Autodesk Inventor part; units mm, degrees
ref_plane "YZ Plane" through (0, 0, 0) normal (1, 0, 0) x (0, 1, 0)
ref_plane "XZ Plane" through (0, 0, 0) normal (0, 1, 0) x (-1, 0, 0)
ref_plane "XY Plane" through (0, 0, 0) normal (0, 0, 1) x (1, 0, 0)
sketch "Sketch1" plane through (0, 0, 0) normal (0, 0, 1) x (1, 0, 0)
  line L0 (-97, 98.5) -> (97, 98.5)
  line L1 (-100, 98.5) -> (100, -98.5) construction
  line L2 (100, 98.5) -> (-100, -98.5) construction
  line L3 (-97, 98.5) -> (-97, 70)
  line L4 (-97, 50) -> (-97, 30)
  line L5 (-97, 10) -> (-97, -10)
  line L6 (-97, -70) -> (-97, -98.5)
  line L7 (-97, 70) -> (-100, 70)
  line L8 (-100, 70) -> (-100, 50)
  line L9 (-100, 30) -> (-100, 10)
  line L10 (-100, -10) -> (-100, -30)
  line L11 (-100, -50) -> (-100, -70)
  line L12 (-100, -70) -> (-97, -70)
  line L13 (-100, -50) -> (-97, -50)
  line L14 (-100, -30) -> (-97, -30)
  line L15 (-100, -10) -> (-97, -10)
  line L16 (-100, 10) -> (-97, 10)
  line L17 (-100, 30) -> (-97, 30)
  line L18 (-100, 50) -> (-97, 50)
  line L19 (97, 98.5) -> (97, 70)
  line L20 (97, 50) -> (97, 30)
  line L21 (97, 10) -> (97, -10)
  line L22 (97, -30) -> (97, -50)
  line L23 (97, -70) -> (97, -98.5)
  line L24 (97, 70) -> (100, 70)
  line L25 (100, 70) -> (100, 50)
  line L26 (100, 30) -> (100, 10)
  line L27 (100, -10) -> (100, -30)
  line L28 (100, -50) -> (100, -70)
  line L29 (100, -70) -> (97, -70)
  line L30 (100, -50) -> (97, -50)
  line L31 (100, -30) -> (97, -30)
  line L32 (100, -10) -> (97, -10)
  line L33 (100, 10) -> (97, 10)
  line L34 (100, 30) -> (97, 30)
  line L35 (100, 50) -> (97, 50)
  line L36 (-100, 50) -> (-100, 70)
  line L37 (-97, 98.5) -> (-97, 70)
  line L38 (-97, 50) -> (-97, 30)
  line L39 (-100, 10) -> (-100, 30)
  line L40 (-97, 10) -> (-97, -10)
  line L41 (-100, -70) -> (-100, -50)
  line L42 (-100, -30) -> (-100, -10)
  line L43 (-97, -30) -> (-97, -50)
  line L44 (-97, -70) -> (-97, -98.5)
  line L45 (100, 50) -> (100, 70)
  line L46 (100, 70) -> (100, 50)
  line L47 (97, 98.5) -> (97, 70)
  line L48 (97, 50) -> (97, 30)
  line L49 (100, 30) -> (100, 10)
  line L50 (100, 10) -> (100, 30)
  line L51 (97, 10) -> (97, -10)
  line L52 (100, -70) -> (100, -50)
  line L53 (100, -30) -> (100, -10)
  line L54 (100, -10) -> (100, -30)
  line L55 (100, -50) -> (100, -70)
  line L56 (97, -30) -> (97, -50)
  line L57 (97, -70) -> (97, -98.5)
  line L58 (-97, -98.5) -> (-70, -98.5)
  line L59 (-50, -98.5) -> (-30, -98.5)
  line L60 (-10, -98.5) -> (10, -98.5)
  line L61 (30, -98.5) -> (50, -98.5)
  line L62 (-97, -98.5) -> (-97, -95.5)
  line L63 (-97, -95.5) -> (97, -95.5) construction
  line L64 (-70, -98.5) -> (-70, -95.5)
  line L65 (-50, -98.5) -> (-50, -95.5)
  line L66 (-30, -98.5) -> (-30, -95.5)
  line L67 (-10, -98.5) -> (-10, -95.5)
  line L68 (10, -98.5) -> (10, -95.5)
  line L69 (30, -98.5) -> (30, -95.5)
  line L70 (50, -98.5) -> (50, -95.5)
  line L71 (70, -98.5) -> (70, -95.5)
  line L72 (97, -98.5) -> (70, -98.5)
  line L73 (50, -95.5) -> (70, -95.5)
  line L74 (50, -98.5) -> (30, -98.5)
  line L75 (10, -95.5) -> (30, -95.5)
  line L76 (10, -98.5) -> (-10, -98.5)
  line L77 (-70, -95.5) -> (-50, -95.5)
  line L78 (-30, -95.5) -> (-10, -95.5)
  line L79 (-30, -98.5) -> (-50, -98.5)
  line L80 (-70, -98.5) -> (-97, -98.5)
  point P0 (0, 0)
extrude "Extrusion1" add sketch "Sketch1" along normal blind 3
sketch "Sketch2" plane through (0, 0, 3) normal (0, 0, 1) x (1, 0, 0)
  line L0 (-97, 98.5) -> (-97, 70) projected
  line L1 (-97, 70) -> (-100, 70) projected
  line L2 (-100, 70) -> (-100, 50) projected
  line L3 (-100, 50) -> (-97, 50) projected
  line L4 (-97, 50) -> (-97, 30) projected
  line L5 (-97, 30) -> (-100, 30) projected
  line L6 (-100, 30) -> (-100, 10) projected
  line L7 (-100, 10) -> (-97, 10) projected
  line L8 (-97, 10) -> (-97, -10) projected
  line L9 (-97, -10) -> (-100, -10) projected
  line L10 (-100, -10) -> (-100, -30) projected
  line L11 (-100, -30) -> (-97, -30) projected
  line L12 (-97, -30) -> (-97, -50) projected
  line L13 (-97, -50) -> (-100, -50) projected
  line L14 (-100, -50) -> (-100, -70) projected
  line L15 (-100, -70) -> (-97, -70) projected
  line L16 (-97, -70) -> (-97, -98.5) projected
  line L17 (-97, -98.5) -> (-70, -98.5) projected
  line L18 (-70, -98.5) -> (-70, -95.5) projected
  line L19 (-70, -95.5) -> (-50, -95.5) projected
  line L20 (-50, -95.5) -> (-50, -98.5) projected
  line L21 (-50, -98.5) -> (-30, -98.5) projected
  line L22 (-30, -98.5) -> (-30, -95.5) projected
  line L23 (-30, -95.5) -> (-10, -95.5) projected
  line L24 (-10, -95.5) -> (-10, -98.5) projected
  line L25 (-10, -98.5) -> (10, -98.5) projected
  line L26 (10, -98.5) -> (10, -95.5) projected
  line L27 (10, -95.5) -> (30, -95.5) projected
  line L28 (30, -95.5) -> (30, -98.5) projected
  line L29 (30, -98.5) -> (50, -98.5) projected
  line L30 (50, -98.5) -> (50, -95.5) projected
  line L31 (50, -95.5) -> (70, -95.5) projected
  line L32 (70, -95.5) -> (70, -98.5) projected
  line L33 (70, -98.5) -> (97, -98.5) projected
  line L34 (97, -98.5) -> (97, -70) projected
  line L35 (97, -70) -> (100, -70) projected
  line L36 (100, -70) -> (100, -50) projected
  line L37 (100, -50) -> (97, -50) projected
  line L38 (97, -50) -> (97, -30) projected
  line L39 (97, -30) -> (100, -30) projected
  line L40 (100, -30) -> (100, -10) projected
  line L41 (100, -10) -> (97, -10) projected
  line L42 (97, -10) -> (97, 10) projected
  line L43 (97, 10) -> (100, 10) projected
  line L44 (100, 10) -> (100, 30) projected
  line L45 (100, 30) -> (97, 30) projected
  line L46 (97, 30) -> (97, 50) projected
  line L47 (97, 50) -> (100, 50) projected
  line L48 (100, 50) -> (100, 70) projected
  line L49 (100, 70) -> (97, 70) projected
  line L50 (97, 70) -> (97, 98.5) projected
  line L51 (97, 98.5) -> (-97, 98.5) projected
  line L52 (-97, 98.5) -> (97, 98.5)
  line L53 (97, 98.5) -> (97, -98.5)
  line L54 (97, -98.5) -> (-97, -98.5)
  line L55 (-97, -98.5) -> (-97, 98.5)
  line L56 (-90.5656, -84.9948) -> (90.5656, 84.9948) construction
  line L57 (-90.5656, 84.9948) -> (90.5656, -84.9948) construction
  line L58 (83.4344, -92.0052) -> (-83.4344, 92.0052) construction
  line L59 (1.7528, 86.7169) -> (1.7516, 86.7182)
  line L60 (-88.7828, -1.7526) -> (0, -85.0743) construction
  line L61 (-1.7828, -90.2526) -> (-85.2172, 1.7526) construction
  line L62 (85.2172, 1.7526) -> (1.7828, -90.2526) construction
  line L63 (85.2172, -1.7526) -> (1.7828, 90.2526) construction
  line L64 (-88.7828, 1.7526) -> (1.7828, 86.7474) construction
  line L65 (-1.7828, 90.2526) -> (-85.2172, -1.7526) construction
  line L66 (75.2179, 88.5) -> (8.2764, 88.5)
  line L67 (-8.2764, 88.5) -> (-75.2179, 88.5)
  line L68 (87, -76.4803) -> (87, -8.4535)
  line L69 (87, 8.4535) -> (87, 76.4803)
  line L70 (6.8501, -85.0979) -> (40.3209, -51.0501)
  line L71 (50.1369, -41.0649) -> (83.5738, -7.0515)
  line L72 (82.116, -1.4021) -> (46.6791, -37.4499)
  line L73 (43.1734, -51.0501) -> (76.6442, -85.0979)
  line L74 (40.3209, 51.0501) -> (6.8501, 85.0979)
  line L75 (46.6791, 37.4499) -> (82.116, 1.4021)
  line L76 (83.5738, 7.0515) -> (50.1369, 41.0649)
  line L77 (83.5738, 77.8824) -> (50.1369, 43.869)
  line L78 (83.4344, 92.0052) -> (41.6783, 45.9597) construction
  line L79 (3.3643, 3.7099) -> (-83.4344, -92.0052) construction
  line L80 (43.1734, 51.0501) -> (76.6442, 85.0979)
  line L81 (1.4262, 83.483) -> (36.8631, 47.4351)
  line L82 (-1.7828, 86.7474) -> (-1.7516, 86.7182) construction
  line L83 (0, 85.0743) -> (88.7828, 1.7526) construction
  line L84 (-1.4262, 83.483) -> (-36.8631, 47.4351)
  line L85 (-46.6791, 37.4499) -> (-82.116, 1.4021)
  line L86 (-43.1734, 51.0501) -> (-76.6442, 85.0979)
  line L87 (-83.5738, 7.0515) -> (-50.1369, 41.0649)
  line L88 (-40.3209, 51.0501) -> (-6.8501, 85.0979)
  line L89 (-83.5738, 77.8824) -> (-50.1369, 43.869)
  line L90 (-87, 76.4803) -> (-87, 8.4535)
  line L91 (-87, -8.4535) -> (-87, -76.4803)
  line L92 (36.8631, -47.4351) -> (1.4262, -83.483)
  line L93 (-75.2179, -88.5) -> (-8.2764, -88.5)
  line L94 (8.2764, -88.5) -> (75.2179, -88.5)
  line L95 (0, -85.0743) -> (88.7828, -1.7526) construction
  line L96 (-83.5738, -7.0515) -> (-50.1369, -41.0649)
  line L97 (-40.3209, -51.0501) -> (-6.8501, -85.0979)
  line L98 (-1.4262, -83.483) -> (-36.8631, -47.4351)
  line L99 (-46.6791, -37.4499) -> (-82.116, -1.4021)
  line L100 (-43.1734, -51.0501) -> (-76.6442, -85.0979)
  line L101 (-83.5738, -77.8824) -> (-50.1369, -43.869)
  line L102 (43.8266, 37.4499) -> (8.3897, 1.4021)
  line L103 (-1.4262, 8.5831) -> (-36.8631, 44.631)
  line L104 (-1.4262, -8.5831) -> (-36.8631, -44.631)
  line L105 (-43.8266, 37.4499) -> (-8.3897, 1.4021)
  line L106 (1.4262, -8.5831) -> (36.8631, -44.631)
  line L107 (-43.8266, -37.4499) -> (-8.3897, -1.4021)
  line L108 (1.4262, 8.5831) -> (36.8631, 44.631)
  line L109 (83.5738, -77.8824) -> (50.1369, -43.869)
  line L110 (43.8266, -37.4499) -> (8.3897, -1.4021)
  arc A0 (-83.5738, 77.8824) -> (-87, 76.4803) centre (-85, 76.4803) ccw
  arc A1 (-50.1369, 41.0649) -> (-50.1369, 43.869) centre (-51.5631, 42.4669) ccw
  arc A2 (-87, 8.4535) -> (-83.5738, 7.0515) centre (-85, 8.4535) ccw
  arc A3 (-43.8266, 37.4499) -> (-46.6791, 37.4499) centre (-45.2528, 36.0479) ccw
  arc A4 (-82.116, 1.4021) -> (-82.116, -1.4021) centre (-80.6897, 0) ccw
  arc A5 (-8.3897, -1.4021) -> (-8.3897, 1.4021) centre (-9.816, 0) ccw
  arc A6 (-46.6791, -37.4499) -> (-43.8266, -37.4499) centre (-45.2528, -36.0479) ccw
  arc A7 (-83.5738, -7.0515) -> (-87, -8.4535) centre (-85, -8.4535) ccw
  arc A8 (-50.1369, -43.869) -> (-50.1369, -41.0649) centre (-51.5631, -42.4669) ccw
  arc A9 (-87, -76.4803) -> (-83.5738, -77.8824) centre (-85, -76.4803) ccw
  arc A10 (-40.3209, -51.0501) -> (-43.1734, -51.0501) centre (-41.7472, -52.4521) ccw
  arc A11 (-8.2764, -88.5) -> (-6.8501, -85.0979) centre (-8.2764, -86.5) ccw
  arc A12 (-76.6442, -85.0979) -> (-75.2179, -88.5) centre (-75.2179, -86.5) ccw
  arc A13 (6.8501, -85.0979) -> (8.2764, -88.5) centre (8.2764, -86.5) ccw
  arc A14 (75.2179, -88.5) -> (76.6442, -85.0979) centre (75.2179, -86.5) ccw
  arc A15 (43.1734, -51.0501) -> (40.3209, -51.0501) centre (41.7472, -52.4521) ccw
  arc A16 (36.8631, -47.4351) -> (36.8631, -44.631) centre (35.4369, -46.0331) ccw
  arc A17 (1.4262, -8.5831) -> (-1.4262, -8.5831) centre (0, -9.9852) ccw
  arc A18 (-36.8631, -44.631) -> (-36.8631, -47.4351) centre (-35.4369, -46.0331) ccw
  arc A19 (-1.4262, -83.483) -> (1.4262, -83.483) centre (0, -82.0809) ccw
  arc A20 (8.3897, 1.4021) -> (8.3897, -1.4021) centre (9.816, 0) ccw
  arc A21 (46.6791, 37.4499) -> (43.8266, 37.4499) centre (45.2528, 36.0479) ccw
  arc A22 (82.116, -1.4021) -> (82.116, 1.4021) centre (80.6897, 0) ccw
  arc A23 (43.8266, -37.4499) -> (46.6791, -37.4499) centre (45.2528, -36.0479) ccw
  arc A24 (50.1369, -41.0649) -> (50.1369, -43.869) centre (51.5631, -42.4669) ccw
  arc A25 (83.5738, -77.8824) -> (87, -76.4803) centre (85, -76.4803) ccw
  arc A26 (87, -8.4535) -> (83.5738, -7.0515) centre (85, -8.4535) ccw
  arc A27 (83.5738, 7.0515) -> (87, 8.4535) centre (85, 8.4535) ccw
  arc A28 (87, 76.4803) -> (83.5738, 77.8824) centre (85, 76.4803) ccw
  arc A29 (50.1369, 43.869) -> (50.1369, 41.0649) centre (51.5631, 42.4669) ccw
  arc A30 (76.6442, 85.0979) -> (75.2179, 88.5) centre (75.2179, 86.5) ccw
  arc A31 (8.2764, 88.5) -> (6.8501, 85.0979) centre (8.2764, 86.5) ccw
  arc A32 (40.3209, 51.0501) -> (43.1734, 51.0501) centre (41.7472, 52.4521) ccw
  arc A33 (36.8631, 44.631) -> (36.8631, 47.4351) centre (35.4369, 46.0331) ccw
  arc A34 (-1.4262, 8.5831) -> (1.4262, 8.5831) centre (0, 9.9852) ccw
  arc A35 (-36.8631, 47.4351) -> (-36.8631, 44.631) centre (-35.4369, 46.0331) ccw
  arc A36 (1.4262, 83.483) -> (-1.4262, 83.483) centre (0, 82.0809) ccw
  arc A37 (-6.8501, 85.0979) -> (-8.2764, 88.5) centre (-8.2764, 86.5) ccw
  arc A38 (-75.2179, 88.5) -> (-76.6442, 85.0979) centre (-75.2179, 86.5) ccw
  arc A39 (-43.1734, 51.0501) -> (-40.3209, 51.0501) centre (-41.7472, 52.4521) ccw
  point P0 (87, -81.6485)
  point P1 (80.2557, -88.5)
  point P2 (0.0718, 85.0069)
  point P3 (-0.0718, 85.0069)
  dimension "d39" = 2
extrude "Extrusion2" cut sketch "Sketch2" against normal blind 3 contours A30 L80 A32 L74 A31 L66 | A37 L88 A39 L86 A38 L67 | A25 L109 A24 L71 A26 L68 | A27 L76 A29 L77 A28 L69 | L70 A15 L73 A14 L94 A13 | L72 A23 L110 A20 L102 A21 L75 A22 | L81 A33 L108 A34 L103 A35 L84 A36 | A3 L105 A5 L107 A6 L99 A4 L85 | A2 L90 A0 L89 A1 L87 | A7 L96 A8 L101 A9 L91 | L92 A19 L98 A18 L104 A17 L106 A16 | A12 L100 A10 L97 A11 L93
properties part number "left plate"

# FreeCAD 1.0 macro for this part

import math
import FreeCAD as App
import Part
import Sketcher

V = App.Vector
Q = App.Units.Quantity


def add_polygon(sketch, points):
    """Adds a closed chain of lines whose ends are joined by coincident constraints."""
    first, n = sketch.GeometryCount, len(points)
    for a, b in zip(points, points[1:] + points[:1]):
        sketch.addGeometry(Part.LineSegment(App.Vector(*a, 0), App.Vector(*b, 0)), False)
    for i in range(n):
        sketch.addConstraint(Sketcher.Constraint("Coincident", first + i, 2, first + (i + 1) % n, 1))

doc = App.newDocument("Part")
body = doc.addObject("PartDesign::Body", "Body")

# Sketch on XY plane
sketch1 = body.newObject("Sketcher::SketchObject", "Sketch")
sketch1.AttachmentSupport = (doc.getObject("XY_Plane"), [""])
sketch1.MapMode = "FlatFace"
add_polygon(sketch1, [(97, 98.5), (-97, 98.5), (-97, 70), (-100, 70), (-100, 50), (-97, 50), (-97, 30), (-100, 30), (-100, 10), (-97, 10), (-97, -10), (-100, -10), (-100, -30), (-97, -30), (-97, -50), (-100, -50), (-100, -70), (-97, -70), (-97, -98.5), (-70, -98.5), (-70, -95.5), (-50, -95.5), (-50, -98.5), (-30, -98.5), (-30, -95.5), (-10, -95.5), (-10, -98.5), (10, -98.5), (10, -95.5), (30, -95.5), (30, -98.5), (50, -98.5), (50, -95.5), (70, -95.5), (70, -98.5), (97, -98.5), (97, -70), (100, -70), (100, -50), (97, -50), (97, -30), (100, -30), (100, -10), (97, -10), (97, 10), (100, 10), (100, 30), (97, 30), (97, 50), (100, 50), (100, 70), (97, 70)])  # lines 0-51
sketch1.addConstraint([
    Sketcher.Constraint("Horizontal", 0),
    Sketcher.Constraint("Vertical", 1),
    Sketcher.Constraint("Horizontal", 2),
    Sketcher.Constraint("Vertical", 3),
    Sketcher.Constraint("Horizontal", 4),
    Sketcher.Constraint("Vertical", 5),
    Sketcher.Constraint("Horizontal", 6),
    Sketcher.Constraint("Vertical", 7),
    Sketcher.Constraint("Horizontal", 8),
    Sketcher.Constraint("Vertical", 9),
    Sketcher.Constraint("Horizontal", 10),
    Sketcher.Constraint("Vertical", 11),
    Sketcher.Constraint("Horizontal", 12),
    Sketcher.Constraint("Vertical", 13),
    Sketcher.Constraint("Horizontal", 14),
    Sketcher.Constraint("Vertical", 15),
    Sketcher.Constraint("Horizontal", 16),
    Sketcher.Constraint("Vertical", 17),
    Sketcher.Constraint("Horizontal", 18),
    Sketcher.Constraint("Vertical", 19),
    Sketcher.Constraint("Horizontal", 20),
    Sketcher.Constraint("Vertical", 21),
    Sketcher.Constraint("Horizontal", 22),
    Sketcher.Constraint("Vertical", 23),
    Sketcher.Constraint("Horizontal", 24),
    Sketcher.Constraint("Vertical", 25),
    Sketcher.Constraint("Horizontal", 26),
    Sketcher.Constraint("Vertical", 27),
    Sketcher.Constraint("Horizontal", 28),
    Sketcher.Constraint("Vertical", 29),
    Sketcher.Constraint("Horizontal", 30),
    Sketcher.Constraint("Vertical", 31),
    Sketcher.Constraint("Horizontal", 32),
    Sketcher.Constraint("Vertical", 33),
    Sketcher.Constraint("Horizontal", 34),
    Sketcher.Constraint("Vertical", 35),
    Sketcher.Constraint("Horizontal", 36),
    Sketcher.Constraint("Vertical", 37),
    Sketcher.Constraint("Horizontal", 38),
    Sketcher.Constraint("Vertical", 39),
    Sketcher.Constraint("Horizontal", 40),
    Sketcher.Constraint("Vertical", 41),
    Sketcher.Constraint("Horizontal", 42),
    Sketcher.Constraint("Vertical", 43),
    Sketcher.Constraint("Horizontal", 44),
    Sketcher.Constraint("Vertical", 45),
    Sketcher.Constraint("Horizontal", 46),
    Sketcher.Constraint("Vertical", 47),
    Sketcher.Constraint("Horizontal", 48),
    Sketcher.Constraint("Vertical", 49),
    Sketcher.Constraint("Horizontal", 50),
    Sketcher.Constraint("Vertical", 51),
    Sketcher.Constraint("Symmetric", 0, 2, 34, 2, -1, 1),
    Sketcher.Constraint("Symmetric", 2, 2, 36, 2, -1, 1),
    Sketcher.Constraint("Symmetric", 4, 2, 38, 2, -1, 1),
    Sketcher.Constraint("Symmetric", 6, 2, 40, 2, -1, 1),
    Sketcher.Constraint("Symmetric", 8, 2, 42, 2, -1, 1),
    Sketcher.Constraint("Symmetric", 10, 2, 44, 2, -1, 1),
    Sketcher.Constraint("Symmetric", 12, 2, 46, 2, -1, 1),
    Sketcher.Constraint("Symmetric", 14, 2, 48, 2, -1, 1),
    Sketcher.Constraint("Symmetric", 16, 2, 50, 2, -1, 1),
    Sketcher.Constraint("Symmetric", 24, 2, 27, 2, -2),
    Sketcher.Constraint("Symmetric", 22, 2, 29, 2, -2),
    Sketcher.Constraint("Symmetric", 20, 2, 31, 2, -2),
    Sketcher.Constraint("Symmetric", 18, 2, 33, 2, -2),
    Sketcher.Constraint("Symmetric", 16, 2, 35, 2, -2),
    Sketcher.Constraint("Symmetric", 14, 2, 37, 2, -2),
    Sketcher.Constraint("Symmetric", 12, 2, 39, 2, -2),
    Sketcher.Constraint("Symmetric", 10, 2, 41, 2, -2),
    Sketcher.Constraint("Horizontal", 18, 2, 21, 2),
    Sketcher.Constraint("Horizontal", 20, 2, 23, 2),
    Sketcher.Constraint("Horizontal", 22, 2, 25, 2),
    Sketcher.Constraint("Vertical", 1, 2, 4, 2),
    Sketcher.Constraint("Vertical", 3, 2, 6, 2),
    Sketcher.Constraint("Vertical", 5, 2, 8, 2),
    Sketcher.Constraint("Equal", 20, 22),
    Sketcher.Constraint("Equal", 22, 24),
    Sketcher.Constraint("Equal", 24, 26),
    Sketcher.Constraint("Equal", 32, 3),
    Sketcher.Constraint("Equal", 3, 5),
    Sketcher.Constraint("Equal", 5, 7),
    Sketcher.Constraint("Equal", 7, 9),
    Sketcher.Constraint("Equal", 50, 19),
    Sketcher.Constraint("DistanceX", 0, 2, 0, 1, 194.0),
    Sketcher.Constraint("DistanceX", 2, 2, 2, 1, 3.0),
    Sketcher.Constraint("DistanceX", 18, 1, 18, 2, 27.0),
    Sketcher.Constraint("DistanceY", 1, 2, 1, 1, 28.5),
])
pad1 = body.newObject("PartDesign::Pad", "Pad")
pad1.Profile = sketch1
pad1.Length = 3

# Sketch on XY plane
sketch2 = body.newObject("Sketcher::SketchObject", "Sketch001")
sketch2.AttachmentSupport = (doc.getObject("XY_Plane"), [""])
sketch2.MapMode = "FlatFace"
sketch2.AttachmentOffset = App.Placement(V(0, 0, 3), App.Rotation())
sketch2.addGeometry([
    Part.ArcOfCircle(Part.Circle(V(75.2, 86.5, 0), V(0, 0, 1), 2), math.radians(-45), math.radians(90)),  # 0
    Part.LineSegment(V(75.2, 88.5, 0), V(8.3, 88.5, 0)),  # 1
    Part.ArcOfCircle(Part.Circle(V(8.3, 86.5, 0), V(0, 0, 1), 2), math.radians(90), math.radians(225)),  # 2
    Part.LineSegment(V(6.9, 85.1, 0), V(40.3, 51.1, 0)),  # 3
    Part.ArcOfCircle(Part.Circle(V(41.7, 52.5, 0), V(0, 0, 1), 2), math.radians(-135), math.radians(-45)),  # 4
    Part.LineSegment(V(43.2, 51.1, 0), V(76.6, 85.1, 0)),  # 5
    Part.ArcOfCircle(Part.Circle(V(-8.3, 86.5, 0), V(0, 0, 1), 2), math.radians(-45), math.radians(90)),  # 6
    Part.LineSegment(V(-8.3, 88.5, 0), V(-75.2, 88.5, 0)),  # 7
    Part.ArcOfCircle(Part.Circle(V(-75.2, 86.5, 0), V(0, 0, 1), 2), math.radians(90), math.radians(225)),  # 8
    Part.LineSegment(V(-76.6, 85.1, 0), V(-43.2, 51.1, 0)),  # 9
    Part.ArcOfCircle(Part.Circle(V(-41.7, 52.5, 0), V(0, 0, 1), 2), math.radians(-135), math.radians(-45)),  # 10
    Part.LineSegment(V(-40.3, 51.1, 0), V(-6.9, 85.1, 0)),  # 11
    Part.ArcOfCircle(Part.Circle(V(85, -76.5, 0), V(0, 0, 1), 2), math.radians(-135), math.radians(0)),  # 12
    Part.LineSegment(V(87, -76.5, 0), V(87, -8.5, 0)),  # 13
    Part.ArcOfCircle(Part.Circle(V(85, -8.5, 0), V(0, 0, 1), 2), math.radians(0), math.radians(135)),  # 14
    Part.LineSegment(V(83.6, -7.1, 0), V(50.1, -41.1, 0)),  # 15
    Part.ArcOfCircle(Part.Circle(V(51.6, -42.5, 0), V(0, 0, 1), 2), math.radians(135), math.radians(225)),  # 16
    Part.LineSegment(V(50.1, -43.9, 0), V(83.6, -77.9, 0)),  # 17
    Part.ArcOfCircle(Part.Circle(V(85, 8.5, 0), V(0, 0, 1), 2), math.radians(-135), math.radians(0)),  # 18
    Part.LineSegment(V(87, 8.5, 0), V(87, 76.5, 0)),  # 19
    Part.ArcOfCircle(Part.Circle(V(85, 76.5, 0), V(0, 0, 1), 2), math.radians(0), math.radians(135)),  # 20
    Part.LineSegment(V(83.6, 77.9, 0), V(50.1, 43.9, 0)),  # 21
    Part.ArcOfCircle(Part.Circle(V(51.6, 42.5, 0), V(0, 0, 1), 2), math.radians(135), math.radians(225)),  # 22
    Part.LineSegment(V(50.1, 41.1, 0), V(83.6, 7.1, 0)),  # 23
    Part.LineSegment(V(40.3, -51.1, 0), V(6.9, -85.1, 0)),  # 24
    Part.ArcOfCircle(Part.Circle(V(8.3, -86.5, 0), V(0, 0, 1), 2), math.radians(135), math.radians(270)),  # 25
    Part.LineSegment(V(8.3, -88.5, 0), V(75.2, -88.5, 0)),  # 26
    Part.ArcOfCircle(Part.Circle(V(75.2, -86.5, 0), V(0, 0, 1), 2), math.radians(-90), math.radians(45)),  # 27
    Part.LineSegment(V(76.6, -85.1, 0), V(43.2, -51.1, 0)),  # 28
    Part.ArcOfCircle(Part.Circle(V(41.7, -52.5, 0), V(0, 0, 1), 2), math.radians(45), math.radians(135)),  # 29
    Part.LineSegment(V(46.7, -37.4, 0), V(82.1, -1.4, 0)),  # 30
    Part.ArcOfCircle(Part.Circle(V(80.7, 0, 0), V(0, 0, 1), 2), math.radians(-45), math.radians(45)),  # 31
    Part.LineSegment(V(82.1, 1.4, 0), V(46.7, 37.4, 0)),  # 32
    Part.ArcOfCircle(Part.Circle(V(45.3, 36, 0), V(0, 0, 1), 2), math.radians(45), math.radians(135)),  # 33
    Part.LineSegment(V(43.8, 37.4, 0), V(8.4, 1.4, 0)),  # 34
    Part.ArcOfCircle(Part.Circle(V(9.8, 0, 0), V(0, 0, 1), 2), math.radians(135), math.radians(225)),  # 35
    Part.LineSegment(V(8.4, -1.4, 0), V(43.8, -37.4, 0)),  # 36
    Part.ArcOfCircle(Part.Circle(V(45.3, -36, 0), V(0, 0, 1), 2), math.radians(-135), math.radians(-45)),  # 37
    Part.LineSegment(V(36.9, 47.4, 0), V(1.4, 83.5, 0)),  # 38
    Part.ArcOfCircle(Part.Circle(V(0, 82.1, 0), V(0, 0, 1), 2), math.radians(45), math.radians(135)),  # 39
    Part.LineSegment(V(-1.4, 83.5, 0), V(-36.9, 47.4, 0)),  # 40
    Part.ArcOfCircle(Part.Circle(V(-35.4, 46, 0), V(0, 0, 1), 2), math.radians(135), math.radians(225)),  # 41
    Part.LineSegment(V(-36.9, 44.6, 0), V(-1.4, 8.6, 0)),  # 42
    Part.ArcOfCircle(Part.Circle(V(0, 10, 0), V(0, 0, 1), 2), math.radians(-135), math.radians(-45)),  # 43
    Part.LineSegment(V(1.4, 8.6, 0), V(36.9, 44.6, 0)),  # 44
    Part.ArcOfCircle(Part.Circle(V(35.4, 46, 0), V(0, 0, 1), 2), math.radians(-45), math.radians(45)),  # 45
    Part.ArcOfCircle(Part.Circle(V(-45.3, 36, 0), V(0, 0, 1), 2), math.radians(45), math.radians(135)),  # 46
    Part.LineSegment(V(-46.7, 37.4, 0), V(-82.1, 1.4, 0)),  # 47
    Part.ArcOfCircle(Part.Circle(V(-80.7, 0, 0), V(0, 0, 1), 2), math.radians(135), math.radians(225)),  # 48
    Part.LineSegment(V(-82.1, -1.4, 0), V(-46.7, -37.4, 0)),  # 49
    Part.ArcOfCircle(Part.Circle(V(-45.3, -36, 0), V(0, 0, 1), 2), math.radians(-135), math.radians(-45)),  # 50
    Part.LineSegment(V(-43.8, -37.4, 0), V(-8.4, -1.4, 0)),  # 51
    Part.ArcOfCircle(Part.Circle(V(-9.8, 0, 0), V(0, 0, 1), 2), math.radians(-45), math.radians(45)),  # 52
    Part.LineSegment(V(-8.4, 1.4, 0), V(-43.8, 37.4, 0)),  # 53
    Part.ArcOfCircle(Part.Circle(V(-85, 8.5, 0), V(0, 0, 1), 2), math.radians(180), math.radians(315)),  # 54
    Part.LineSegment(V(-83.6, 7.1, 0), V(-50.1, 41.1, 0)),  # 55
    Part.ArcOfCircle(Part.Circle(V(-51.6, 42.5, 0), V(0, 0, 1), 2), math.radians(-45), math.radians(45)),  # 56
    Part.LineSegment(V(-50.1, 43.9, 0), V(-83.6, 77.9, 0)),  # 57
    Part.ArcOfCircle(Part.Circle(V(-85, 76.5, 0), V(0, 0, 1), 2), math.radians(45), math.radians(180)),  # 58
    Part.LineSegment(V(-87, 76.5, 0), V(-87, 8.5, 0)),  # 59
    Part.ArcOfCircle(Part.Circle(V(-85, -8.5, 0), V(0, 0, 1), 2), math.radians(45), math.radians(180)),  # 60
    Part.LineSegment(V(-87, -8.5, 0), V(-87, -76.5, 0)),  # 61
    Part.ArcOfCircle(Part.Circle(V(-85, -76.5, 0), V(0, 0, 1), 2), math.radians(180), math.radians(315)),  # 62
    Part.LineSegment(V(-83.6, -77.9, 0), V(-50.1, -43.9, 0)),  # 63
    Part.ArcOfCircle(Part.Circle(V(-51.6, -42.5, 0), V(0, 0, 1), 2), math.radians(-45), math.radians(45)),  # 64
    Part.LineSegment(V(-50.1, -41.1, 0), V(-83.6, -7.1, 0)),  # 65
    Part.LineSegment(V(1.4, -83.5, 0), V(36.9, -47.4, 0)),  # 66
    Part.ArcOfCircle(Part.Circle(V(35.4, -46, 0), V(0, 0, 1), 2), math.radians(-45), math.radians(45)),  # 67
    Part.LineSegment(V(36.9, -44.6, 0), V(1.4, -8.6, 0)),  # 68
    Part.ArcOfCircle(Part.Circle(V(0, -10, 0), V(0, 0, 1), 2), math.radians(45), math.radians(135)),  # 69
    Part.LineSegment(V(-1.4, -8.6, 0), V(-36.9, -44.6, 0)),  # 70
    Part.ArcOfCircle(Part.Circle(V(-35.4, -46, 0), V(0, 0, 1), 2), math.radians(135), math.radians(225)),  # 71
    Part.LineSegment(V(-36.9, -47.4, 0), V(-1.4, -83.5, 0)),  # 72
    Part.ArcOfCircle(Part.Circle(V(0, -82.1, 0), V(0, 0, 1), 2), math.radians(-135), math.radians(-45)),  # 73
    Part.ArcOfCircle(Part.Circle(V(-75.2, -86.5, 0), V(0, 0, 1), 2), math.radians(135), math.radians(270)),  # 74
    Part.LineSegment(V(-75.2, -88.5, 0), V(-8.3, -88.5, 0)),  # 75
    Part.ArcOfCircle(Part.Circle(V(-8.3, -86.5, 0), V(0, 0, 1), 2), math.radians(-90), math.radians(45)),  # 76
    Part.LineSegment(V(-6.9, -85.1, 0), V(-40.3, -51.1, 0)),  # 77
    Part.ArcOfCircle(Part.Circle(V(-41.7, -52.5, 0), V(0, 0, 1), 2), math.radians(45), math.radians(135)),  # 78
    Part.LineSegment(V(-43.2, -51.1, 0), V(-76.6, -85.1, 0)),  # 79
], False)
sketch2.addConstraint([
    Sketcher.Constraint("Tangent", 0, 2, 1, 1),
    Sketcher.Constraint("Tangent", 1, 2, 2, 1),
    Sketcher.Constraint("Tangent", 2, 2, 3, 1),
    Sketcher.Constraint("Tangent", 3, 2, 4, 1),
    Sketcher.Constraint("Tangent", 4, 2, 5, 1),
    Sketcher.Constraint("Tangent", 5, 2, 0, 1),
    Sketcher.Constraint("Tangent", 6, 2, 7, 1),
    Sketcher.Constraint("Tangent", 7, 2, 8, 1),
    Sketcher.Constraint("Tangent", 8, 2, 9, 1),
    Sketcher.Constraint("Tangent", 9, 2, 10, 1),
    Sketcher.Constraint("Tangent", 10, 2, 11, 1),
    Sketcher.Constraint("Tangent", 11, 2, 6, 1),
    Sketcher.Constraint("Tangent", 12, 2, 13, 1),
    Sketcher.Constraint("Tangent", 13, 2, 14, 1),
    Sketcher.Constraint("Tangent", 14, 2, 15, 1),
    Sketcher.Constraint("Tangent", 15, 2, 16, 1),
    Sketcher.Constraint("Tangent", 16, 2, 17, 1),
    Sketcher.Constraint("Tangent", 17, 2, 12, 1),
    Sketcher.Constraint("Tangent", 18, 2, 19, 1),
    Sketcher.Constraint("Tangent", 19, 2, 20, 1),
    Sketcher.Constraint("Tangent", 20, 2, 21, 1),
    Sketcher.Constraint("Tangent", 21, 2, 22, 1),
    Sketcher.Constraint("Tangent", 22, 2, 23, 1),
    Sketcher.Constraint("Tangent", 23, 2, 18, 1),
    Sketcher.Constraint("Tangent", 24, 2, 25, 1),
    Sketcher.Constraint("Tangent", 25, 2, 26, 1),
    Sketcher.Constraint("Tangent", 26, 2, 27, 1),
    Sketcher.Constraint("Tangent", 27, 2, 28, 1),
    Sketcher.Constraint("Tangent", 28, 2, 29, 1),
    Sketcher.Constraint("Tangent", 29, 2, 24, 1),
    Sketcher.Constraint("Tangent", 30, 2, 31, 1),
    Sketcher.Constraint("Tangent", 31, 2, 32, 1),
    Sketcher.Constraint("Tangent", 32, 2, 33, 1),
    Sketcher.Constraint("Tangent", 33, 2, 34, 1),
    Sketcher.Constraint("Tangent", 34, 2, 35, 1),
    Sketcher.Constraint("Tangent", 35, 2, 36, 1),
    Sketcher.Constraint("Tangent", 36, 2, 37, 1),
    Sketcher.Constraint("Tangent", 37, 2, 30, 1),
    Sketcher.Constraint("Tangent", 38, 2, 39, 1),
    Sketcher.Constraint("Tangent", 39, 2, 40, 1),
    Sketcher.Constraint("Tangent", 40, 2, 41, 1),
    Sketcher.Constraint("Tangent", 41, 2, 42, 1),
    Sketcher.Constraint("Tangent", 42, 2, 43, 1),
    Sketcher.Constraint("Tangent", 43, 2, 44, 1),
    Sketcher.Constraint("Tangent", 44, 2, 45, 1),
    Sketcher.Constraint("Tangent", 45, 2, 38, 1),
    Sketcher.Constraint("Tangent", 46, 2, 47, 1),
    Sketcher.Constraint("Tangent", 47, 2, 48, 1),
    Sketcher.Constraint("Tangent", 48, 2, 49, 1),
    Sketcher.Constraint("Tangent", 49, 2, 50, 1),
    Sketcher.Constraint("Tangent", 50, 2, 51, 1),
    Sketcher.Constraint("Tangent", 51, 2, 52, 1),
    Sketcher.Constraint("Tangent", 52, 2, 53, 1),
    Sketcher.Constraint("Tangent", 53, 2, 46, 1),
    Sketcher.Constraint("Tangent", 54, 2, 55, 1),
    Sketcher.Constraint("Tangent", 55, 2, 56, 1),
    Sketcher.Constraint("Tangent", 56, 2, 57, 1),
    Sketcher.Constraint("Tangent", 57, 2, 58, 1),
    Sketcher.Constraint("Tangent", 58, 2, 59, 1),
    Sketcher.Constraint("Tangent", 59, 2, 54, 1),
    Sketcher.Constraint("Tangent", 60, 2, 61, 1),
    Sketcher.Constraint("Tangent", 61, 2, 62, 1),
    Sketcher.Constraint("Tangent", 62, 2, 63, 1),
    Sketcher.Constraint("Tangent", 63, 2, 64, 1),
    Sketcher.Constraint("Tangent", 64, 2, 65, 1),
    Sketcher.Constraint("Tangent", 65, 2, 60, 1),
    Sketcher.Constraint("Tangent", 66, 2, 67, 1),
    Sketcher.Constraint("Tangent", 67, 2, 68, 1),
    Sketcher.Constraint("Tangent", 68, 2, 69, 1),
    Sketcher.Constraint("Tangent", 69, 2, 70, 1),
    Sketcher.Constraint("Tangent", 70, 2, 71, 1),
    Sketcher.Constraint("Tangent", 71, 2, 72, 1),
    Sketcher.Constraint("Tangent", 72, 2, 73, 1),
    Sketcher.Constraint("Tangent", 73, 2, 66, 1),
    Sketcher.Constraint("Tangent", 74, 2, 75, 1),
    Sketcher.Constraint("Tangent", 75, 2, 76, 1),
    Sketcher.Constraint("Tangent", 76, 2, 77, 1),
    Sketcher.Constraint("Tangent", 77, 2, 78, 1),
    Sketcher.Constraint("Tangent", 78, 2, 79, 1),
    Sketcher.Constraint("Tangent", 79, 2, 74, 1),
    Sketcher.Constraint("Horizontal", 1),
    Sketcher.Constraint("Horizontal", 7),
    Sketcher.Constraint("Vertical", 13),
    Sketcher.Constraint("Vertical", 19),
    Sketcher.Constraint("Horizontal", 26),
    Sketcher.Constraint("Vertical", 59),
    Sketcher.Constraint("Vertical", 61),
    Sketcher.Constraint("Horizontal", 75),
    Sketcher.Constraint("Equal", 0, 2),
    Sketcher.Constraint("Equal", 2, 4),
    Sketcher.Constraint("Equal", 4, 6),
    Sketcher.Constraint("Equal", 6, 8),
    Sketcher.Constraint("Equal", 8, 10),
    Sketcher.Constraint("Equal", 10, 12),
    Sketcher.Constraint("Equal", 12, 14),
    Sketcher.Constraint("Equal", 14, 16),
    Sketcher.Constraint("Equal", 16, 18),
    Sketcher.Constraint("Equal", 18, 20),
    Sketcher.Constraint("Equal", 20, 22),
    Sketcher.Constraint("Equal", 22, 25),
    Sketcher.Constraint("Equal", 25, 27),
    Sketcher.Constraint("Equal", 27, 29),
    Sketcher.Constraint("Equal", 29, 31),
    Sketcher.Constraint("Equal", 31, 33),
    Sketcher.Constraint("Equal", 33, 35),
    Sketcher.Constraint("Equal", 35, 37),
    Sketcher.Constraint("Equal", 37, 39),
    Sketcher.Constraint("Equal", 39, 41),
    Sketcher.Constraint("Equal", 41, 43),
    Sketcher.Constraint("Equal", 43, 45),
    Sketcher.Constraint("Equal", 45, 46),
    Sketcher.Constraint("Equal", 46, 48),
    Sketcher.Constraint("Equal", 48, 50),
    Sketcher.Constraint("Equal", 50, 52),
    Sketcher.Constraint("Equal", 52, 54),
    Sketcher.Constraint("Equal", 54, 56),
    Sketcher.Constraint("Equal", 56, 58),
    Sketcher.Constraint("Equal", 58, 60),
    Sketcher.Constraint("Equal", 60, 62),
    Sketcher.Constraint("Equal", 62, 64),
    Sketcher.Constraint("Equal", 64, 67),
    Sketcher.Constraint("Equal", 67, 69),
    Sketcher.Constraint("Equal", 69, 71),
    Sketcher.Constraint("Equal", 71, 73),
    Sketcher.Constraint("Equal", 73, 74),
    Sketcher.Constraint("Equal", 74, 76),
    Sketcher.Constraint("Equal", 76, 78),
    Sketcher.Constraint("Symmetric", 6, 3, 25, 3, -1, 1),
    Sketcher.Constraint("Symmetric", 10, 3, 29, 3, -1, 1),
    Sketcher.Constraint("Symmetric", 37, 3, 46, 3, -1, 1),
    Sketcher.Constraint("Symmetric", 31, 3, 48, 3, -1, 1),
    Sketcher.Constraint("Symmetric", 33, 3, 50, 3, -1, 1),
    Sketcher.Constraint("Symmetric", 35, 3, 52, 3, -1, 1),
    Sketcher.Constraint("Symmetric", 14, 3, 54, 3, -1, 1),
    Sketcher.Constraint("Symmetric", 16, 3, 56, 3, -1, 1),
    Sketcher.Constraint("Symmetric", 18, 3, 60, 3, -1, 1),
    Sketcher.Constraint("Symmetric", 22, 3, 64, 3, -1, 1),
    Sketcher.Constraint("Symmetric", 41, 3, 67, 3, -1, 1),
    Sketcher.Constraint("Symmetric", 43, 3, 69, 3, -1, 1),
    Sketcher.Constraint("Symmetric", 45, 3, 71, 3, -1, 1),
    Sketcher.Constraint("Symmetric", 39, 3, 73, 3, -1, 1),
    Sketcher.Constraint("Symmetric", 0, 3, 74, 3, -1, 1),
    Sketcher.Constraint("Symmetric", 4, 3, 78, 3, -1, 1),
    Sketcher.Constraint("Symmetric", 2, 3, 6, 3, -2),
    Sketcher.Constraint("Symmetric", 4, 3, 10, 3, -2),
    Sketcher.Constraint("Symmetric", 41, 3, 45, 3, -2),
    Sketcher.Constraint("Symmetric", 33, 3, 46, 3, -2),
    Sketcher.Constraint("Symmetric", 18, 3, 54, 3, -2),
    Sketcher.Constraint("Symmetric", 22, 3, 56, 3, -2),
    Sketcher.Constraint("PointOnObject", 31, 3, -1),
    Sketcher.Constraint("PointOnObject", 35, 3, -1),
    Sketcher.Constraint("PointOnObject", 39, 3, -2),
    Sketcher.Constraint("PointOnObject", 43, 3, -2),
    Sketcher.Constraint("Parallel", 3, 9),
    Sketcher.Constraint("Parallel", 5, 11),
    Sketcher.Constraint("Parallel", 11, 15),
    Sketcher.Constraint("Parallel", 9, 17),
    Sketcher.Constraint("Parallel", 15, 21),
    Sketcher.Constraint("Parallel", 23, 28),
    Sketcher.Constraint("Parallel", 24, 30),
    Sketcher.Constraint("Parallel", 30, 34),
    Sketcher.Constraint("Parallel", 36, 38),
    Sketcher.Constraint("Parallel", 38, 42),
    Sketcher.Constraint("Parallel", 53, 57),
    Sketcher.Constraint("Parallel", 55, 63),
    Sketcher.Constraint("Parallel", 72, 77),
    Sketcher.Constraint("Equal", 36, 38),
    Sketcher.Constraint("Radius", 0, 2.0),
    Sketcher.Constraint("DistanceX", -1, 1, 12, 3, 85.0),
    Sketcher.Constraint("DistanceY", -1, 1, 0, 3, 86.5),
    Sketcher.Constraint("Angle", 3, Q("-45.4896 deg")),
    Sketcher.Constraint("DistanceY", -1, 1, 3, 2, 51.05),
    Sketcher.Constraint("DistanceX", 11, 2, -1, 1, 6.85),
    Sketcher.Constraint("DistanceY", -1, 1, 32, 2, 37.45),
    Sketcher.Constraint("DistanceY", 13, 1, 13, 2, 68.0268),
    Sketcher.Constraint("DistanceY", 16, 3, -1, 1, 42.467),
    Sketcher.Constraint("DistanceX", -1, 1, 35, 3, 9.816),
    Sketcher.Constraint("DistanceY", -1, 1, 39, 3, 82.081),
])
pocket1 = body.newObject("PartDesign::Pocket", "Pocket")
pocket1.Profile = sketch2
pocket1.Length = 3

doc.recompute()
